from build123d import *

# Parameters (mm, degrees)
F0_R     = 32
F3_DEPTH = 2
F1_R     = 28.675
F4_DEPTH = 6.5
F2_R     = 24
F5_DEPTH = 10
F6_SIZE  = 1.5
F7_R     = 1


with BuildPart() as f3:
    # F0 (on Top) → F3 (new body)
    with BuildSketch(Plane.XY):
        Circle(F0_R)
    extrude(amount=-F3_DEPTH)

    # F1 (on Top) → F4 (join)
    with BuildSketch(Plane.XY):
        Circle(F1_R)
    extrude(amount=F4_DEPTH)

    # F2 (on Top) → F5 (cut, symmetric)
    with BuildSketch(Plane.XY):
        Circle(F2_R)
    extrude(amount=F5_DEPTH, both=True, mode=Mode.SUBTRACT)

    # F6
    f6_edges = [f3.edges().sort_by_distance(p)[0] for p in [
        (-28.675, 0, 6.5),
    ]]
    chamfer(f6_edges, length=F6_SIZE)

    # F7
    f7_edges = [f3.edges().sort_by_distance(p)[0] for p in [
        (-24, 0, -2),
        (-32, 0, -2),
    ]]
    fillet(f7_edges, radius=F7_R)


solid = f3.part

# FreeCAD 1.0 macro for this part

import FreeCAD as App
import Part
import Sketcher


def edges_at(feature, points):
    """Names of the edges that pass closest to the given points."""
    edges = feature.Shape.Edges
    near = lambda p: min(range(len(edges)), key=lambda i: edges[i].distToShape(Part.Vertex(*p))[0])
    return sorted({f"Edge{near(p) + 1}" for p in points})

doc = App.newDocument("Part")
body = doc.addObject("PartDesign::Body", "Body")

sketch1 = body.newObject("Sketcher::SketchObject", "Sketch")
sketch1.AttachmentSupport = (doc.getObject("XY_Plane"), [""])
sketch1.MapMode = "FlatFace"
sketch1.addGeometry(Part.Circle(App.Vector(0, 0, 0), App.Vector(0, 0, 1), 32), False)
sketch1.addConstraint([
    Sketcher.Constraint("Coincident", 0, 3, -1, 1),
    Sketcher.Constraint("Diameter", 0, 64.0),
])
pad1 = body.newObject("PartDesign::Pad", "Pad")
pad1.Profile = sketch1
pad1.Length = 2
pad1.Reversed = True

sketch2 = body.newObject("Sketcher::SketchObject", "Sketch001")
sketch2.AttachmentSupport = (doc.getObject("XY_Plane"), [""])
sketch2.MapMode = "FlatFace"
sketch2.addGeometry(Part.Circle(App.Vector(0, 0, 0), App.Vector(0, 0, 1), 29), False)
sketch2.addConstraint([
    Sketcher.Constraint("Coincident", 0, 3, -1, 1),
    Sketcher.Constraint("Diameter", 0, 57.35),
])
pad2 = body.newObject("PartDesign::Pad", "Pad001")
pad2.Profile = sketch2
pad2.Length = 6.5

sketch3 = body.newObject("Sketcher::SketchObject", "Sketch002")
sketch3.AttachmentSupport = (doc.getObject("XY_Plane"), [""])
sketch3.MapMode = "FlatFace"
sketch3.addGeometry(Part.Circle(App.Vector(0, 0, 0), App.Vector(0, 0, 1), 24), False)
sketch3.addConstraint([
    Sketcher.Constraint("Coincident", 0, 3, -1, 1),
    Sketcher.Constraint("Diameter", 0, 48.0),
])
pocket1 = body.newObject("PartDesign::Pocket", "Pocket")
pocket1.Profile = sketch3
pocket1.Length = 20
pocket1.Midplane = True
doc.recompute()

chamfer = body.newObject("PartDesign::Chamfer", "Chamfer")
chamfer.Base = (pocket1, edges_at(pocket1, [(-28.675, 0, 6.5)]))
chamfer.Size = 1.5
doc.recompute()

fillet = body.newObject("PartDesign::Fillet", "Fillet")
fillet.Base = (chamfer, edges_at(chamfer, [(-24, 0, -2), (-32, 0, -2)]))
fillet.Radius = 1

doc.recompute()
